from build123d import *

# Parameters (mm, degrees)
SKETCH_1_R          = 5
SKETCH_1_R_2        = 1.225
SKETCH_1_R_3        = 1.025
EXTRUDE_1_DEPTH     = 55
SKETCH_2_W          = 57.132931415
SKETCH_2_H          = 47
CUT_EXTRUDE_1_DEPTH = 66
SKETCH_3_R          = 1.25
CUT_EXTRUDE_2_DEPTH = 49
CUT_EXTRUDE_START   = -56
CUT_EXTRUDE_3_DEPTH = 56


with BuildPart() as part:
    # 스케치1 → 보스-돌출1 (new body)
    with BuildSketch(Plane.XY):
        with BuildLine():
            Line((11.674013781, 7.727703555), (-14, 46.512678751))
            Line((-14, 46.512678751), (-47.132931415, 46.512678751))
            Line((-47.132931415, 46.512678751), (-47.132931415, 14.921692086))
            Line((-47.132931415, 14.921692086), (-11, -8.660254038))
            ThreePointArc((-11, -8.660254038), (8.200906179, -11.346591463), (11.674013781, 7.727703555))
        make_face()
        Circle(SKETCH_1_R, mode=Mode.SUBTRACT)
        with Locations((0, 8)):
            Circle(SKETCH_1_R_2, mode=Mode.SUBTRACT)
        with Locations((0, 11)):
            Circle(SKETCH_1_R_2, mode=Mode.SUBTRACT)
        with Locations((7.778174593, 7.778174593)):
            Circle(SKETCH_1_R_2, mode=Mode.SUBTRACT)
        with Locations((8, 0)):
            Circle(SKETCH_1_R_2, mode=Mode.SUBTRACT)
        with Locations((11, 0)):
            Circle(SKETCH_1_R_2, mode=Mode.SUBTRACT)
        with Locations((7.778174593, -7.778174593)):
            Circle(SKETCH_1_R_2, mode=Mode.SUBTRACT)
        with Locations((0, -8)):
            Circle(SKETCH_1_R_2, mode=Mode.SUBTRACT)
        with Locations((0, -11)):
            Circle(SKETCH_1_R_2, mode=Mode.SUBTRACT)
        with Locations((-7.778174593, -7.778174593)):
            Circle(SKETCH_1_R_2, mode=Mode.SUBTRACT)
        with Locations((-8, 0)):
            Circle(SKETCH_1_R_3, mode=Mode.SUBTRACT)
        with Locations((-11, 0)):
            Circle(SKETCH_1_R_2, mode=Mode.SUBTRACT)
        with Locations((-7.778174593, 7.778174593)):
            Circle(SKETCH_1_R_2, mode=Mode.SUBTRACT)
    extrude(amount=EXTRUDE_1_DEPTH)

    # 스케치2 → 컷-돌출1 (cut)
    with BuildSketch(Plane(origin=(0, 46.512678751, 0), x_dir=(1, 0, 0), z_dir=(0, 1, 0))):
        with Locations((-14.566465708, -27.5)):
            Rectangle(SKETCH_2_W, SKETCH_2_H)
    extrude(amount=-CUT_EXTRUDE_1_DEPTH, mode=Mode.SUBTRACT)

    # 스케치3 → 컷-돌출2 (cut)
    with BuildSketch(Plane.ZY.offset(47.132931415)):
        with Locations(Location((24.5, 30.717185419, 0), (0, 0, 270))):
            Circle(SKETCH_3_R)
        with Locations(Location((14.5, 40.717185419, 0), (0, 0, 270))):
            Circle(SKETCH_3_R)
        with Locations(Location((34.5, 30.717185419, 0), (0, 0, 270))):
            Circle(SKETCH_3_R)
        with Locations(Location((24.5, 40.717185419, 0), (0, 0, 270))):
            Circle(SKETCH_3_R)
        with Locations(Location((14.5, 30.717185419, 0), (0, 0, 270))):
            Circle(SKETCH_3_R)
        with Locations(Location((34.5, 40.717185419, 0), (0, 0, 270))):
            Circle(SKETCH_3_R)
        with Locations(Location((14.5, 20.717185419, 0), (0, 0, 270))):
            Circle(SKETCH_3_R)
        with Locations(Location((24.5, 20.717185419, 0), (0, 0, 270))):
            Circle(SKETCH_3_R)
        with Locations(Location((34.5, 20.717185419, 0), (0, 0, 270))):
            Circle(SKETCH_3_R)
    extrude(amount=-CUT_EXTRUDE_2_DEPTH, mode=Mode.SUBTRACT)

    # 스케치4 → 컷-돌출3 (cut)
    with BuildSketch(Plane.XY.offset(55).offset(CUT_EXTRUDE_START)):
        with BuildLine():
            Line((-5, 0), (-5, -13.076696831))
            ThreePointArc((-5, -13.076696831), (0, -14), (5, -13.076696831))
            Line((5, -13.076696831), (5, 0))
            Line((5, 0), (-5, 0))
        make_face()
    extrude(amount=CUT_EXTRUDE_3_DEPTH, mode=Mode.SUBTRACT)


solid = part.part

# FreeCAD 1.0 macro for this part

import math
import FreeCAD as App
import Part
import Sketcher
from FreeCAD import Vector
Q = App.Units.Quantity

doc = App.newDocument("Part")
params = doc.addObject("Spreadsheet::Sheet", "Params")
for row, (alias, value) in enumerate([
    ("sketch1_diameter", "10 mm"),
    ("sketch1_radius", "14 mm"),
    ("sketch1_diameter2", "2.45 mm"),
    ("sketch1_diameter3", "2.05 mm"),
    ("pad1_length", "55 mm"),
    ("sketch2_height", "47 mm"),
    ("pocket1_length", "66 mm"),
    ("sketch3_diameter", "2.5 mm"),
    ("pocket2_length", "49 mm"),
    ("sketch4_radius", "14 mm"),
    ("sketch4_width", "10 mm"),
    ("pocket3_length", "56 mm"),
], start=1):
    params.set(f"A{row}", alias)
    params.set(f"B{row}", "=" + value)
    params.setAlias(f"B{row}", alias)

body = doc.addObject("PartDesign::Body", "Body")

# Sketch on XY plane
sketch1 = doc.addObject("Sketcher::SketchObject", "Sketch")
body.addObject(sketch1)
sketch1.AttachmentSupport = (doc.XY_Plane, [""])
sketch1.MapMode = "FlatFace"
sketch1.addGeometry(Part.LineSegment(Vector(11.7, 7.7, 0), Vector(-14, 46.5, 0)), False)
sketch1.addGeometry(Part.LineSegment(Vector(-14, 46.5, 0), Vector(-47.1, 46.5, 0)), False)
sketch1.addGeometry(Part.LineSegment(Vector(-47.1, 46.5, 0), Vector(-47.1, 14.9, 0)), False)
sketch1.addGeometry(Part.LineSegment(Vector(-47.1, 14.9, 0), Vector(-11, -8.7, 0)), False)
sketch1.addGeometry(Part.ArcOfCircle(Part.Circle(Vector(0, 0, 0), Vector(0, 0, 1), 14), math.radians(-142), math.radians(34)), False)
sketch1.addGeometry(Part.Circle(Vector(-7.8, -7.8, 0), Vector(0, 0, 1), 1.2), False)
sketch1.addGeometry(Part.Circle(Vector(0, -11, 0), Vector(0, 0, 1), 1.2), False)
sketch1.addGeometry(Part.Circle(Vector(0, -8, 0), Vector(0, 0, 1), 1.2), False)
sketch1.addGeometry(Part.Circle(Vector(7.8, -7.8, 0), Vector(0, 0, 1), 1.2), False)
sketch1.addGeometry(Part.Circle(Vector(-11, 0, 0), Vector(0, 0, 1), 1.2), False)
sketch1.addGeometry(Part.Circle(Vector(-8, 0, 0), Vector(0, 0, 1), 1), False)
sketch1.addGeometry(Part.Circle(Vector(0, 0, 0), Vector(0, 0, 1), 5), False)
sketch1.addGeometry(Part.Circle(Vector(-7.8, 7.8, 0), Vector(0, 0, 1), 1.2), False)
sketch1.addGeometry(Part.Circle(Vector(0, 8, 0), Vector(0, 0, 1), 1.2), False)
sketch1.addGeometry(Part.Circle(Vector(0, 11, 0), Vector(0, 0, 1), 1.2), False)
sketch1.addGeometry(Part.Circle(Vector(8, 0, 0), Vector(0, 0, 1), 1.2), False)
sketch1.addGeometry(Part.Circle(Vector(11, 0, 0), Vector(0, 0, 1), 1.2), False)
sketch1.addGeometry(Part.Circle(Vector(7.8, 7.8, 0), Vector(0, 0, 1), 1.2), False)
sketch1.addConstraint(Sketcher.Constraint("Coincident", 0, 2, 1, 1))
sketch1.addConstraint(Sketcher.Constraint("Coincident", 1, 2, 2, 1))
sketch1.addConstraint(Sketcher.Constraint("Coincident", 2, 2, 3, 1))
sketch1.addConstraint(Sketcher.Constraint("Coincident", 3, 2, 4, 1))
sketch1.addConstraint(Sketcher.Constraint("Tangent", 4, 2, 0, 1))
sketch1.addConstraint(Sketcher.Constraint("Horizontal", 1))
sketch1.addConstraint(Sketcher.Constraint("Vertical", 2))
sketch1.addConstraint(Sketcher.Constraint("Coincident", 4, 3, -1, 1))
sketch1.addConstraint(Sketcher.Constraint("Coincident", 11, 3, -1, 1))
sketch1.addConstraint(Sketcher.Constraint("Equal", 5, 6))
sketch1.addConstraint(Sketcher.Constraint("Equal", 6, 7))
sketch1.addConstraint(Sketcher.Constraint("Equal", 7, 8))
sketch1.addConstraint(Sketcher.Constraint("Equal", 8, 9))
sketch1.addConstraint(Sketcher.Constraint("Equal", 9, 12))
sketch1.addConstraint(Sketcher.Constraint("Equal", 12, 13))
sketch1.addConstraint(Sketcher.Constraint("Equal", 13, 14))
sketch1.addConstraint(Sketcher.Constraint("Equal", 14, 15))
sketch1.addConstraint(Sketcher.Constraint("Equal", 15, 16))
sketch1.addConstraint(Sketcher.Constraint("Equal", 16, 17))
sketch1.addConstraint(Sketcher.Constraint("Symmetric", 8, 3, 12, 3, -1, 1))
sketch1.addConstraint(Sketcher.Constraint("Symmetric", 7, 3, 13, 3, -1, 1))
sketch1.addConstraint(Sketcher.Constraint("Symmetric", 6, 3, 14, 3, -1, 1))
sketch1.addConstraint(Sketcher.Constraint("Symmetric", 10, 3, 15, 3, -1, 1))
sketch1.addConstraint(Sketcher.Constraint("Symmetric", 9, 3, 16, 3, -1, 1))
sketch1.addConstraint(Sketcher.Constraint("Symmetric", 5, 3, 17, 3, -1, 1))
sketch1.addConstraint(Sketcher.Constraint("Symmetric", 5, 3, 8, 3, -2))
sketch1.addConstraint(Sketcher.Constraint("PointOnObject", 6, 3, -2))
sketch1.addConstraint(Sketcher.Constraint("PointOnObject", 7, 3, -2))
sketch1.addConstraint(Sketcher.Constraint("PointOnObject", 9, 3, -1))
sketch1.addConstraint(Sketcher.Constraint("PointOnObject", 10, 3, -1))
sketch1.addConstraint(Sketcher.Constraint("Vertical", 9, 3, 3, 2))
sketch1.addConstraint(Sketcher.Constraint("Diameter", 11, Q("10 mm")))
sketch1.addConstraint(Sketcher.Constraint("Radius", 4, Q("14 mm")))
sketch1.addConstraint(Sketcher.Constraint("Diameter", 5, Q("2.45 mm")))
sketch1.addConstraint(Sketcher.Constraint("Diameter", 10, Q("2.05 mm")))
sketch1.addConstraint(Sketcher.Constraint("DistanceY", 6, 3, -1, 1, Q("11 mm")))
sketch1.addConstraint(Sketcher.Constraint("DistanceY", 7, 3, -1, 1, Q("8 mm")))
sketch1.addConstraint(Sketcher.Constraint("DistanceX", 9, 3, -1, 1, Q("11 mm")))
sketch1.addConstraint(Sketcher.Constraint("DistanceX", 10, 3, -1, 1, Q("8 mm")))
sketch1.addConstraint(Sketcher.Constraint("DistanceX", 0, 2, -1, 1, Q("14 mm")))
sketch1.addConstraint(Sketcher.Constraint("DistanceX", 1, 2, 1, 1, Q("33.132931 mm")))
sketch1.addConstraint(Sketcher.Constraint("Distance", 0, Q("46.512679 mm")))
sketch1.addConstraint(Sketcher.Constraint("DistanceY", 2, 2, 2, 1, Q("31.590987 mm")))
sketch1.addConstraint(Sketcher.Constraint("DistanceX", 5, 3, 8, 3, Q("15.556349 mm")))
sketch1.addConstraint(Sketcher.Constraint("DistanceY", 5, 3, 12, 3, Q("15.556349 mm")))
sketch1.setExpression("Constraints[31]", "Params.sketch1_diameter")
sketch1.setExpression("Constraints[32]", "Params.sketch1_radius")
sketch1.setExpression("Constraints[33]", "Params.sketch1_diameter2")
sketch1.setExpression("Constraints[34]", "Params.sketch1_diameter3")
pad1 = doc.addObject("PartDesign::Pad", "Pad")
body.addObject(pad1)
pad1.Profile = sketch1
pad1.setExpression("Length", "Params.pad1_length")

# Sketch on XZ plane
sketch2 = doc.addObject("Sketcher::SketchObject", "Sketch001")
body.addObject(sketch2)
sketch2.AttachmentSupport = (doc.XZ_Plane, [""])
sketch2.MapMode = "FlatFace"
sketch2.AttachmentOffset = App.Placement(Vector(0, 0, -46.512679), App.Rotation())
sketch2.addGeometry(Part.LineSegment(Vector(-43, 4, 0), Vector(-43, 51, 0)), False)
sketch2.addGeometry(Part.LineSegment(Vector(-43, 51, 0), Vector(14, 51, 0)), False)
sketch2.addGeometry(Part.LineSegment(Vector(14, 51, 0), Vector(14, 4, 0)), False)
sketch2.addGeometry(Part.LineSegment(Vector(14, 4, 0), Vector(-43, 4, 0)), False)
sketch2.addConstraint(Sketcher.Constraint("Coincident", 0, 2, 1, 1))
sketch2.addConstraint(Sketcher.Constraint("Coincident", 1, 2, 2, 1))
sketch2.addConstraint(Sketcher.Constraint("Coincident", 2, 2, 3, 1))
sketch2.addConstraint(Sketcher.Constraint("Coincident", 3, 2, 0, 1))
sketch2.addConstraint(Sketcher.Constraint("Vertical", 0))
sketch2.addConstraint(Sketcher.Constraint("Horizontal", 1))
sketch2.addConstraint(Sketcher.Constraint("Vertical", 2))
sketch2.addConstraint(Sketcher.Constraint("Horizontal", 3))
sketch2.addConstraint(Sketcher.Constraint("DistanceY", 0, 1, 0, 2, Q("47 mm")))
sketch2.addConstraint(Sketcher.Constraint("DistanceY", -1, 1, 0, 2, Q("51 mm")))
sketch2.addConstraint(Sketcher.Constraint("DistanceX", -1, 1, 1, 2, Q("14 mm")))
sketch2.addConstraint(Sketcher.Constraint("DistanceX", 1, 1, 1, 2, Q("57.132931 mm")))
sketch2.setExpression("Constraints[8]", "Params.sketch2_height")
pocket1 = doc.addObject("PartDesign::Pocket", "Pocket")
body.addObject(pocket1)
pocket1.Profile = sketch2
pocket1.setExpression("Length", "Params.pocket1_length")
pocket1.Reversed = True

# Sketch on YZ plane
sketch3 = doc.addObject("Sketcher::SketchObject", "Sketch002")
body.addObject(sketch3)
sketch3.AttachmentSupport = (doc.YZ_Plane, [""])
sketch3.MapMode = "FlatFace"
sketch3.AttachmentOffset = App.Placement(Vector(0, 0, -47.132931), App.Rotation())
sketch3.addGeometry(Part.Circle(Vector(30.7, 24.5, 0), Vector(0, 0, 1), 1.2), False)
sketch3.addGeometry(Part.Circle(Vector(40.7, 14.5, 0), Vector(0, 0, 1), 1.2), False)
sketch3.addGeometry(Part.Circle(Vector(30.7, 34.5, 0), Vector(0, 0, 1), 1.2), False)
sketch3.addGeometry(Part.Circle(Vector(40.7, 24.5, 0), Vector(0, 0, 1), 1.2), False)
sketch3.addGeometry(Part.Circle(Vector(30.7, 14.5, 0), Vector(0, 0, 1), 1.2), False)
sketch3.addGeometry(Part.Circle(Vector(40.7, 34.5, 0), Vector(0, 0, 1), 1.2), False)
sketch3.addGeometry(Part.Circle(Vector(20.7, 14.5, 0), Vector(0, 0, 1), 1.2), False)
sketch3.addGeometry(Part.Circle(Vector(20.7, 24.5, 0), Vector(0, 0, 1), 1.2), False)
sketch3.addGeometry(Part.Circle(Vector(20.7, 34.5, 0), Vector(0, 0, 1), 1.2), False)
sketch3.addConstraint(Sketcher.Constraint("Equal", 0, 1))
sketch3.addConstraint(Sketcher.Constraint("Equal", 1, 2))
sketch3.addConstraint(Sketcher.Constraint("Equal", 2, 3))
sketch3.addConstraint(Sketcher.Constraint("Equal", 3, 4))
sketch3.addConstraint(Sketcher.Constraint("Equal", 4, 5))
sketch3.addConstraint(Sketcher.Constraint("Equal", 5, 6))
sketch3.addConstraint(Sketcher.Constraint("Equal", 6, 7))
sketch3.addConstraint(Sketcher.Constraint("Equal", 7, 8))
sketch3.addConstraint(Sketcher.Constraint("Horizontal", 0, 3, 3, 3))
sketch3.addConstraint(Sketcher.Constraint("Horizontal", 1, 3, 4, 3))
sketch3.addConstraint(Sketcher.Constraint("Horizontal", 2, 3, 5, 3))
sketch3.addConstraint(Sketcher.Constraint("Horizontal", 4, 3, 6, 3))
sketch3.addConstraint(Sketcher.Constraint("Horizontal", 3, 3, 7, 3))
sketch3.addConstraint(Sketcher.Constraint("Horizontal", 5, 3, 8, 3))
sketch3.addConstraint(Sketcher.Constraint("Vertical", 0, 3, 2, 3))
sketch3.addConstraint(Sketcher.Constraint("Vertical", 1, 3, 3, 3))
sketch3.addConstraint(Sketcher.Constraint("Vertical", 2, 3, 4, 3))
sketch3.addConstraint(Sketcher.Constraint("Vertical", 3, 3, 5, 3))
sketch3.addConstraint(Sketcher.Constraint("Vertical", 6, 3, 7, 3))
sketch3.addConstraint(Sketcher.Constraint("Vertical", 7, 3, 8, 3))
sketch3.addConstraint(Sketcher.Constraint("Diameter", 0, Q("2.5 mm")))
sketch3.addConstraint(Sketcher.Constraint("DistanceX", 0, 3, 1, 3, Q("10 mm")))
sketch3.addConstraint(Sketcher.Constraint("DistanceY", 1, 3, 0, 3, Q("10 mm")))
sketch3.addConstraint(Sketcher.Constraint("DistanceY", 0, 3, 2, 3, Q("10 mm")))
sketch3.addConstraint(Sketcher.Constraint("DistanceX", 6, 3, 4, 3, Q("10 mm")))
sketch3.addConstraint(Sketcher.Constraint("DistanceY", -1, 1, 0, 3, Q("24.5 mm")))
sketch3.addConstraint(Sketcher.Constraint("DistanceX", -1, 1, 0, 3, Q("30.717185 mm")))
sketch3.setExpression("Constraints[20]", "Params.sketch3_diameter")
pocket2 = doc.addObject("PartDesign::Pocket", "Pocket001")
body.addObject(pocket2)
pocket2.Profile = sketch3
pocket2.setExpression("Length", "Params.pocket2_length")
pocket2.Reversed = True

# Sketch on XY plane
sketch4 = doc.addObject("Sketcher::SketchObject", "Sketch003")
body.addObject(sketch4)
sketch4.AttachmentSupport = (doc.XY_Plane, [""])
sketch4.MapMode = "FlatFace"
sketch4.AttachmentOffset = App.Placement(Vector(0, 0, -1), App.Rotation())
sketch4.addGeometry(Part.LineSegment(Vector(-5, 0, 0), Vector(-5, -13, 0)), False)
sketch4.addGeometry(Part.ArcOfCircle(Part.Circle(Vector(0, 0, 0), Vector(0, 0, 1), 14), math.radians(-111), math.radians(-69)), False)
sketch4.addGeometry(Part.LineSegment(Vector(5, -13, 0), Vector(5, 0, 0)), False)
sketch4.addGeometry(Part.LineSegment(Vector(5, 0, 0), Vector(-5, 0, 0)), False)
sketch4.addConstraint(Sketcher.Constraint("Coincident", 0, 2, 1, 1))
sketch4.addConstraint(Sketcher.Constraint("Coincident", 1, 2, 2, 1))
sketch4.addConstraint(Sketcher.Constraint("Coincident", 2, 2, 3, 1))
sketch4.addConstraint(Sketcher.Constraint("Coincident", 3, 2, 0, 1))
sketch4.addConstraint(Sketcher.Constraint("Vertical", 0))
sketch4.addConstraint(Sketcher.Constraint("Vertical", 2))
sketch4.addConstraint(Sketcher.Constraint("Horizontal", 3))
sketch4.addConstraint(Sketcher.Constraint("Coincident", 1, 3, -1, 1))
sketch4.addConstraint(Sketcher.Constraint("Symmetric", 2, 2, 3, 2, -1, 1))
sketch4.addConstraint(Sketcher.Constraint("Radius", 1, Q("14 mm")))
sketch4.addConstraint(Sketcher.Constraint("DistanceX", 3, 2, 3, 1, Q("10 mm")))
sketch4.setExpression("Constraints[9]", "Params.sketch4_radius")
sketch4.setExpression("Constraints[10]", "Params.sketch4_width")
pocket3 = doc.addObject("PartDesign::Pocket", "Pocket002")
body.addObject(pocket3)
pocket3.Profile = sketch4
pocket3.setExpression("Length", "Params.pocket3_length")
pocket3.Reversed = True

doc.recompute()
